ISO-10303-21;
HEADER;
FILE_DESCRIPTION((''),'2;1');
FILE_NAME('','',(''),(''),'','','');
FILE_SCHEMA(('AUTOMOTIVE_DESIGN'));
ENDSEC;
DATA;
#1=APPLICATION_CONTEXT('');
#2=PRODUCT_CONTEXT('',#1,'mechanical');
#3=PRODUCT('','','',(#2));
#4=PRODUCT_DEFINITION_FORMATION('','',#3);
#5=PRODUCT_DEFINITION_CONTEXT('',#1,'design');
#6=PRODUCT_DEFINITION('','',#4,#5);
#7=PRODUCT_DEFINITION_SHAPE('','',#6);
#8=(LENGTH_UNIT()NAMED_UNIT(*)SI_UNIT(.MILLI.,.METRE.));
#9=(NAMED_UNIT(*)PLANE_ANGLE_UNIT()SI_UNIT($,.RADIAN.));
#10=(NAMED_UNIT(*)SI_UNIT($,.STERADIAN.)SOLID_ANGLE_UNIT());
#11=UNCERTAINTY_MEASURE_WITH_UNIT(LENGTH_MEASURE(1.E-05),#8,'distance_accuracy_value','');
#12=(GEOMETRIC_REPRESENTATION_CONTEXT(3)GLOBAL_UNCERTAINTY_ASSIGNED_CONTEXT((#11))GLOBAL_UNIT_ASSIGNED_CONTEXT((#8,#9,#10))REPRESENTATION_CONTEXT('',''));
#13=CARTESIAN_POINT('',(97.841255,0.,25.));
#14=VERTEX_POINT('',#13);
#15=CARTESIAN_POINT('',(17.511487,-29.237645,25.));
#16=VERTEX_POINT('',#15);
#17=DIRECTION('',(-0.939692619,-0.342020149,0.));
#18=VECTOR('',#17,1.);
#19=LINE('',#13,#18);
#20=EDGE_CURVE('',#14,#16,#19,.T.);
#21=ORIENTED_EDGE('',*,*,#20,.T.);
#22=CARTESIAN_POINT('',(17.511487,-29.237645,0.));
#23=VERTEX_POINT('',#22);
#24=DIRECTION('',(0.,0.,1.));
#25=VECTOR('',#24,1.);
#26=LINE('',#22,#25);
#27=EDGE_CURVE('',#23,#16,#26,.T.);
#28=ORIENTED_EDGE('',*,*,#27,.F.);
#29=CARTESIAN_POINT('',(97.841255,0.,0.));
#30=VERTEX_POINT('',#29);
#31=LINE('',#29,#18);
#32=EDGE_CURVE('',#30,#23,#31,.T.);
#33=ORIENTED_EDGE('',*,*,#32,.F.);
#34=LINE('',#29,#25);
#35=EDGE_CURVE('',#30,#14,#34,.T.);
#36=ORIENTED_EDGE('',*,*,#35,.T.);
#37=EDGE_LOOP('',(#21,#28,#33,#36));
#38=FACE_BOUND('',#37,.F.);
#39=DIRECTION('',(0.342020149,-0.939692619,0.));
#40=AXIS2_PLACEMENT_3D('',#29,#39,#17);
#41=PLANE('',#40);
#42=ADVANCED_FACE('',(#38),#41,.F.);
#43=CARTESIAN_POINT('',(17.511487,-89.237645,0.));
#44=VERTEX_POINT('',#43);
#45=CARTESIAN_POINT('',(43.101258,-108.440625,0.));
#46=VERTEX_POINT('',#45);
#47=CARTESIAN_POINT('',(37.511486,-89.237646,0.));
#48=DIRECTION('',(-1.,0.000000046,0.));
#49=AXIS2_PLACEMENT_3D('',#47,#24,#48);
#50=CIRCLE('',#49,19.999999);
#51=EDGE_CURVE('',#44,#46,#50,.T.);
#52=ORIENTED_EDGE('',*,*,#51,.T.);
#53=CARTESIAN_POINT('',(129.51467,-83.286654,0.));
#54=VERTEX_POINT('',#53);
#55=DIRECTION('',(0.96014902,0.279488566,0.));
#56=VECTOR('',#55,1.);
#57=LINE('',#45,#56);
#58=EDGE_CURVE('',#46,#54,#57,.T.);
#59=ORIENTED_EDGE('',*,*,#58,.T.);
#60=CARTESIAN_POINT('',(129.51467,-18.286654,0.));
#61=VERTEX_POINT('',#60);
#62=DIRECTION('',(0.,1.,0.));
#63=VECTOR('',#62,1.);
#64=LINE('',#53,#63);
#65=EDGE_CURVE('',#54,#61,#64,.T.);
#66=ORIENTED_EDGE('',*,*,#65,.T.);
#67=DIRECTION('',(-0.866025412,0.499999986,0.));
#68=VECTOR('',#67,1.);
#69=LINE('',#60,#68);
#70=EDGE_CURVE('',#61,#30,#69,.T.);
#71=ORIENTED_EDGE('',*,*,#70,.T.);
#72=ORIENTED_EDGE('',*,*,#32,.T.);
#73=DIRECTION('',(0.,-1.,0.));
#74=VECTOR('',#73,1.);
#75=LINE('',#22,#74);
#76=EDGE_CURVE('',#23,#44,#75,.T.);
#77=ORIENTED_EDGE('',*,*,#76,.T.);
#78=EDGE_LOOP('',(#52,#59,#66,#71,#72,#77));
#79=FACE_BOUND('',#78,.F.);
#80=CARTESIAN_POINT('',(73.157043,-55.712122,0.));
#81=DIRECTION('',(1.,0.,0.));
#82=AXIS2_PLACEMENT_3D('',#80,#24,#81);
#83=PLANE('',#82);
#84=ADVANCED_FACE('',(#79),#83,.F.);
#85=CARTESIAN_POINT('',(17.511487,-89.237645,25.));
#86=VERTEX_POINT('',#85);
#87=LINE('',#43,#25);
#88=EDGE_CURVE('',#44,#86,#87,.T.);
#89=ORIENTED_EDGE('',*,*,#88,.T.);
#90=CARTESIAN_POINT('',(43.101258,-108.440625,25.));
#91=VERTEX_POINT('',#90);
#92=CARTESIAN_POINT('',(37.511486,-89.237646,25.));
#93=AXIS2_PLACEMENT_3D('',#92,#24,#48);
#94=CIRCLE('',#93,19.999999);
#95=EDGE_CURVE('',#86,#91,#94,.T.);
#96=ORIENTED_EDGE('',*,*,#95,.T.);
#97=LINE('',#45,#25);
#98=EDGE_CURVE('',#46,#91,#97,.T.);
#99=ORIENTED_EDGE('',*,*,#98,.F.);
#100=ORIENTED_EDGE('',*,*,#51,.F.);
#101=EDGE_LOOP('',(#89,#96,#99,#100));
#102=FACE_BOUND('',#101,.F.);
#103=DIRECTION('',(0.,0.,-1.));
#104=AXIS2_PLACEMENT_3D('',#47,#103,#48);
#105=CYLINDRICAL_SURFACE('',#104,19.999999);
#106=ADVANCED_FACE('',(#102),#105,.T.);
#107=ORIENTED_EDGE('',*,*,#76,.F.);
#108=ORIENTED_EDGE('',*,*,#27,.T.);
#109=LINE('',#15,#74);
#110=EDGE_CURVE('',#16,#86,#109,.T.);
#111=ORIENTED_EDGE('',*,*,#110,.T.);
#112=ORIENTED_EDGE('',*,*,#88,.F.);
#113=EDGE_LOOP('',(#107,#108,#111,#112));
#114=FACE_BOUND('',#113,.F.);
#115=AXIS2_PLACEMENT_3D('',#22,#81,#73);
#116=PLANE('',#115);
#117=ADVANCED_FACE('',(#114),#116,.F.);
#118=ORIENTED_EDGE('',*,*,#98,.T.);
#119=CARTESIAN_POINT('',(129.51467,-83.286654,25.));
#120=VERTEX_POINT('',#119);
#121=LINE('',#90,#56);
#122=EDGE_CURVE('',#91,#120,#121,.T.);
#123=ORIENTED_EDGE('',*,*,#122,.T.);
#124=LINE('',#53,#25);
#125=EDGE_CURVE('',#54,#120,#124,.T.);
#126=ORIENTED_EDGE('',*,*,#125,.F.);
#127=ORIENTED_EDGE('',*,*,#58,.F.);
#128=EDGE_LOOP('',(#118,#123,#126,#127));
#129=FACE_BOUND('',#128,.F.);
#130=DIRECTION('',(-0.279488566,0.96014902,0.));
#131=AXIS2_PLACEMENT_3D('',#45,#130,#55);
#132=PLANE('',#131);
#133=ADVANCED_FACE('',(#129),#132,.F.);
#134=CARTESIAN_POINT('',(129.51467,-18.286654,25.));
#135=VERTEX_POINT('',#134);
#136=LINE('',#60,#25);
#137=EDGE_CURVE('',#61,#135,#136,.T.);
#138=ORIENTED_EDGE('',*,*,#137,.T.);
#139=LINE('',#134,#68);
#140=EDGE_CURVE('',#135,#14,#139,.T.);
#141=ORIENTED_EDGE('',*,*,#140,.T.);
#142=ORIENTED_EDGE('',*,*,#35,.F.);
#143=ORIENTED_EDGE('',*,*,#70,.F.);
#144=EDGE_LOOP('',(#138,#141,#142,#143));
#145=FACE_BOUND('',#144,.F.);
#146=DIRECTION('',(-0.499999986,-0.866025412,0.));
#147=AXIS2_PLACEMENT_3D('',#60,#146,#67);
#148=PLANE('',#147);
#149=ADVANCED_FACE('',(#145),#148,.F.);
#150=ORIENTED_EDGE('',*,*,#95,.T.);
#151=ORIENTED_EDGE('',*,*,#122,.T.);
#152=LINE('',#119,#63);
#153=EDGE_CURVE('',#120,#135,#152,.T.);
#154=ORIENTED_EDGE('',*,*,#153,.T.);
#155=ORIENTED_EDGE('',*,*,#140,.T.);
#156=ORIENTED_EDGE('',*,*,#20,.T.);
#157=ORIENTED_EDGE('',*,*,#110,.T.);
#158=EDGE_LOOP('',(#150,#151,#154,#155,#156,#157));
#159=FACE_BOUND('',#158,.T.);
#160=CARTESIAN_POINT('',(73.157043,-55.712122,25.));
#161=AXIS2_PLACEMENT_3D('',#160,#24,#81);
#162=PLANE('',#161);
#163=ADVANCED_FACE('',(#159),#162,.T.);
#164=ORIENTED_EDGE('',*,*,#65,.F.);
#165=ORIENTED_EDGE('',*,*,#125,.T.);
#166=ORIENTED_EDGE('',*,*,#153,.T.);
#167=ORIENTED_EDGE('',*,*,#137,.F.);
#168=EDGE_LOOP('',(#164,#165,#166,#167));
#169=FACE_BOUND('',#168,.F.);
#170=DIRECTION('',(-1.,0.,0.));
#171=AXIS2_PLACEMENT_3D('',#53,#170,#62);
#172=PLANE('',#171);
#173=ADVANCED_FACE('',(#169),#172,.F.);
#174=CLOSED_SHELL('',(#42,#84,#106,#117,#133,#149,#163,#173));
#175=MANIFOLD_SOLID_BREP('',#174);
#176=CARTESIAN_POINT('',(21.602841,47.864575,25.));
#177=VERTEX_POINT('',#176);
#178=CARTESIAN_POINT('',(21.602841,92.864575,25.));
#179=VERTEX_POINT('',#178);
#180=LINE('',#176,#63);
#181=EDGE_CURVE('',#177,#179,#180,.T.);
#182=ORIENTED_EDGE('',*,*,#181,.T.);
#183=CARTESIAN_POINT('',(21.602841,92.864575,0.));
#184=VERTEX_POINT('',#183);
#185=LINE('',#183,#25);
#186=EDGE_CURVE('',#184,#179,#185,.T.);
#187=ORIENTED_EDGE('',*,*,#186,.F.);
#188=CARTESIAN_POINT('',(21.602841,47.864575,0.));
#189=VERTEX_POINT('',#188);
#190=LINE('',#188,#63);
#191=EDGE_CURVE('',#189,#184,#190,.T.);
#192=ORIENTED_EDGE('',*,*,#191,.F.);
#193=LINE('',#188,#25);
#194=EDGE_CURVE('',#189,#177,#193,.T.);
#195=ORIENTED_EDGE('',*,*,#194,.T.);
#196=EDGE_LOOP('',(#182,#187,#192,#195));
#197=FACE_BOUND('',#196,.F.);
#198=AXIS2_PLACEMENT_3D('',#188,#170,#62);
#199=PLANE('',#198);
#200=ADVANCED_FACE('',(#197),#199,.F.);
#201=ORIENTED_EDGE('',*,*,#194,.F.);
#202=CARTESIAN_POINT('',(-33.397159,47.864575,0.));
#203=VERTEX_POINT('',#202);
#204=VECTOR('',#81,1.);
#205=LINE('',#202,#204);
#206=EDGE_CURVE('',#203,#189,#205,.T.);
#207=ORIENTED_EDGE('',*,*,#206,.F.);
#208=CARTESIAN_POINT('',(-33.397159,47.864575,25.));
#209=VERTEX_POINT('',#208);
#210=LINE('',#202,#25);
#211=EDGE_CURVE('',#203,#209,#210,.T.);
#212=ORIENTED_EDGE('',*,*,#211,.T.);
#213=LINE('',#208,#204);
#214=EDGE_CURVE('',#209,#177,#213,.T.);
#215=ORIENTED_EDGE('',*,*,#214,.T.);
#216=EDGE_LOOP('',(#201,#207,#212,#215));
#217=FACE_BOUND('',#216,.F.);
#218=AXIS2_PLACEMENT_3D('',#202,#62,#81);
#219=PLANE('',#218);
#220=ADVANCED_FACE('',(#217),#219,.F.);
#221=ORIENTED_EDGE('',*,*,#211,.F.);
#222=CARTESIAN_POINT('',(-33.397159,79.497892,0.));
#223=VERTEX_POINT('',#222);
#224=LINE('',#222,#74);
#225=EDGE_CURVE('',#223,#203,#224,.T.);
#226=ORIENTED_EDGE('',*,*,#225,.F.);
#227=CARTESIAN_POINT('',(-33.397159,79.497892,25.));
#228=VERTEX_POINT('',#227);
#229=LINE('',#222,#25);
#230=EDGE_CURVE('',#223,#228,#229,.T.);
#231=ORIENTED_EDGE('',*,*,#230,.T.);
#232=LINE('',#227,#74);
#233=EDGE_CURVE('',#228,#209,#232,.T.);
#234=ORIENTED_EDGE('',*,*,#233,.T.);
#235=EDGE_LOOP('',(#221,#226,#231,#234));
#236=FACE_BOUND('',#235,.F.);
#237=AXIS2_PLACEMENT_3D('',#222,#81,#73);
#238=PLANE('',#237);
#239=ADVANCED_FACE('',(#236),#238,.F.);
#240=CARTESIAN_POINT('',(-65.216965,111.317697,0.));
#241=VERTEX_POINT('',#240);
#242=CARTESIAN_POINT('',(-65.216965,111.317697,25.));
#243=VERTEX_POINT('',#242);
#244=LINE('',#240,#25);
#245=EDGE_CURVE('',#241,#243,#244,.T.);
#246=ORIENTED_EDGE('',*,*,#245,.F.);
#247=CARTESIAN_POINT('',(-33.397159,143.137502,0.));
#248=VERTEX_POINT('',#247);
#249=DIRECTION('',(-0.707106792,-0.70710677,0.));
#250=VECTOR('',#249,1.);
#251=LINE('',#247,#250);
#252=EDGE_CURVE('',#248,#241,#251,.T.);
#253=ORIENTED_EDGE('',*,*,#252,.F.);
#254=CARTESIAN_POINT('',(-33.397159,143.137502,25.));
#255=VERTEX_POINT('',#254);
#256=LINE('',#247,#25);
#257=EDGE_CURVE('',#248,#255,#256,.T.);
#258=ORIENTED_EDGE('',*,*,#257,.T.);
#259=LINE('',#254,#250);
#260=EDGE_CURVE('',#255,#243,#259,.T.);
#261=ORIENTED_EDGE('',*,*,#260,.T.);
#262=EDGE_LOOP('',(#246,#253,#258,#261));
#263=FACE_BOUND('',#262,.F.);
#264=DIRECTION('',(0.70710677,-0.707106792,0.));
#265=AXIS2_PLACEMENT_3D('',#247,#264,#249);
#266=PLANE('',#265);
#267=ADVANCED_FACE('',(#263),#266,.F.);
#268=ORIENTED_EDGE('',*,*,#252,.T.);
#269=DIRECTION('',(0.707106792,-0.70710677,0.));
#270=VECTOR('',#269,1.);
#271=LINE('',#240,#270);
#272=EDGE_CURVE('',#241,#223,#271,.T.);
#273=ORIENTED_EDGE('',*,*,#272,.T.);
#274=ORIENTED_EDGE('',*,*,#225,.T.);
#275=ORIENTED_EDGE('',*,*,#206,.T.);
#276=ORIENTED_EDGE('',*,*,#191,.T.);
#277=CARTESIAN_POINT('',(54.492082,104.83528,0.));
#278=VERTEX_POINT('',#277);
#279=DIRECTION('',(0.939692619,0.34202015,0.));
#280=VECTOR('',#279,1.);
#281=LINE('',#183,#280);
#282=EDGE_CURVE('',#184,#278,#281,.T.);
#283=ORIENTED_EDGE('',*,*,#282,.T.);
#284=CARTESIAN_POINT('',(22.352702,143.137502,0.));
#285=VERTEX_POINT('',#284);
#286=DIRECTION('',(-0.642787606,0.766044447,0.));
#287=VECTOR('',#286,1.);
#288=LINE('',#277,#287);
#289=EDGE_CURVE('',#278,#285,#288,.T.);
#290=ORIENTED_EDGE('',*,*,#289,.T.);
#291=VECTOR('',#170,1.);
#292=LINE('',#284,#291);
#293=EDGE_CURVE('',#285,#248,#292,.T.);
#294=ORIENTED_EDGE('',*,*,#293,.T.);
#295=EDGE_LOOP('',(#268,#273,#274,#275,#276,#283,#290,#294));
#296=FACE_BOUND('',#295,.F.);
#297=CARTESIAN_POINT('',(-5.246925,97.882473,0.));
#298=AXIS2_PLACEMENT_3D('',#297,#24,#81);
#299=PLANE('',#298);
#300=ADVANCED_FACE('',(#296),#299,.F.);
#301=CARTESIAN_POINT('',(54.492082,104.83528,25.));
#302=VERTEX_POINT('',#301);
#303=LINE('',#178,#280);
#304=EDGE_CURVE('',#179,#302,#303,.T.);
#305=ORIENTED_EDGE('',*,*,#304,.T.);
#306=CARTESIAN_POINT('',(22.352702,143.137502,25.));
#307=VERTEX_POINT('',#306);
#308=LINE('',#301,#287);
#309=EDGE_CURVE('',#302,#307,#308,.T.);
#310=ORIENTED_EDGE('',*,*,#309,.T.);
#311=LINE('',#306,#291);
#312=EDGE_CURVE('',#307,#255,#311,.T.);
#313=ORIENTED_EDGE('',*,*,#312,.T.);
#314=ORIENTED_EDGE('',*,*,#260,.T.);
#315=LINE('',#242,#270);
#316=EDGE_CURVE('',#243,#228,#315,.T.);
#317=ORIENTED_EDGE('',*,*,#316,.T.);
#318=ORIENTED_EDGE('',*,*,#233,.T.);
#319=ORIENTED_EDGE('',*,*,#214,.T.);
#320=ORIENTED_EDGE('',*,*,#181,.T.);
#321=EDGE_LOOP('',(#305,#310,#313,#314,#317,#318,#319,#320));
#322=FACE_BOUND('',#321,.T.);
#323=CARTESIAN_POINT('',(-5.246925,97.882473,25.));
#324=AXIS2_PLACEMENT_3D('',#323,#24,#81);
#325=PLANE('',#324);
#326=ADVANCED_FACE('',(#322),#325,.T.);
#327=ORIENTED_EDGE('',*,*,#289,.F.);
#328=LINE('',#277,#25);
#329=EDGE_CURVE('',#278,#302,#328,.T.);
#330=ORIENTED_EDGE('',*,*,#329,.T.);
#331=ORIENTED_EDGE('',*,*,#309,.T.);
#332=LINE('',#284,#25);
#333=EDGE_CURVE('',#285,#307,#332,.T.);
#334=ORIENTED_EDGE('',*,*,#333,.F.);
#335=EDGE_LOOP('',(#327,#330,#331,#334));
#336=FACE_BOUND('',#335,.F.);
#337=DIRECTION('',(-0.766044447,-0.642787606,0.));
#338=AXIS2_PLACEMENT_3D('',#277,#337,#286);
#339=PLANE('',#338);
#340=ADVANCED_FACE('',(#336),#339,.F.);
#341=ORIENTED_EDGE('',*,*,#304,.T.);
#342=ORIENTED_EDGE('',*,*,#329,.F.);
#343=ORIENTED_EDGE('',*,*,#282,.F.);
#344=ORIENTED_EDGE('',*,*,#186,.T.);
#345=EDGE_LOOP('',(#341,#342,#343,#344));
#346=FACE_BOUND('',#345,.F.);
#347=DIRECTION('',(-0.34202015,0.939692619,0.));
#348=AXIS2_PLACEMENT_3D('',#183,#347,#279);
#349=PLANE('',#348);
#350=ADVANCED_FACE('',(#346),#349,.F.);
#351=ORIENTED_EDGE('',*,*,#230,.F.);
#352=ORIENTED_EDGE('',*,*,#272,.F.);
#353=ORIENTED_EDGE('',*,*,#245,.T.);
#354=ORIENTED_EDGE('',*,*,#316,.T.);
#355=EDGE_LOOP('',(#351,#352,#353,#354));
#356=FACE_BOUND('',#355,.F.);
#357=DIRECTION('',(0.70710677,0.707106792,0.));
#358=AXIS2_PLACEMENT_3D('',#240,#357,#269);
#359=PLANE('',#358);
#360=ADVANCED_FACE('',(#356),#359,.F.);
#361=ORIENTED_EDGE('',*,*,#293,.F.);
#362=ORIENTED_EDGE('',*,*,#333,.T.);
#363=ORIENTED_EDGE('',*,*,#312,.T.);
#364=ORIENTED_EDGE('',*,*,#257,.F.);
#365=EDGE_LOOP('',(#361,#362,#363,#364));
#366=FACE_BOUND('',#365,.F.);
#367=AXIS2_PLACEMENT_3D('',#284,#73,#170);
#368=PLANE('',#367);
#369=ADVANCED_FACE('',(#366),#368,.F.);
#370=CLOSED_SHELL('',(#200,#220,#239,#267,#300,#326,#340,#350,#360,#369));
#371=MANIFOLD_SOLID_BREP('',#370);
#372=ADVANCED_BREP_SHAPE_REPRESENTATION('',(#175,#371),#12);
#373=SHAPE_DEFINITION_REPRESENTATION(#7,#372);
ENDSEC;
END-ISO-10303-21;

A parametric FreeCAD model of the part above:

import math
import FreeCAD as App
import Part
import Sketcher

V = App.Vector
Q = App.Units.Quantity

doc = App.newDocument("Part")
body = doc.addObject("PartDesign::Body", "Body")
body.AllowCompound = True

sketch1 = body.newObject("Sketcher::SketchObject", "Sketch")
sketch1.AttachmentSupport = (doc.getObject("XY_Plane"), [""])
sketch1.MapMode = "FlatFace"
sketch1.addGeometry(Part.LineSegment(V(-33, 79, 0), V(-33, 48, 0)), False)
sketch1.addGeometry(Part.LineSegment(V(-33, 48, 0), V(22, 48, 0)), False)
sketch1.addGeometry(Part.LineSegment(V(22, 48, 0), V(22, 93, 0)), False)
sketch1.addGeometry(Part.LineSegment(V(22, 93, 0), V(54, 105, 0)), False)
sketch1.addGeometry(Part.LineSegment(V(54, 105, 0), V(22, 143, 0)), False)
sketch1.addGeometry(Part.LineSegment(V(22, 143, 0), V(-33, 143, 0)), False)
sketch1.addGeometry(Part.LineSegment(V(-33, 143, 0), V(-65, 111, 0)), False)
sketch1.addGeometry(Part.LineSegment(V(-65, 111, 0), V(-33, 79, 0)), False)
sketch1.addGeometry(Part.LineSegment(V(130, -83, 0), V(130, -18, 0)), False)
sketch1.addGeometry(Part.LineSegment(V(130, -18, 0), V(98, 0, 0)), False)
sketch1.addGeometry(Part.LineSegment(V(98, 0, 0), V(18, -29, 0)), False)
sketch1.addGeometry(Part.LineSegment(V(18, -29, 0), V(18, -89, 0)), False)
sketch1.addGeometry(Part.ArcOfCircle(Part.Circle(V(38, -89, 0), V(0, 0, 1), 20), math.radians(180), math.radians(286)), False)
sketch1.addGeometry(Part.LineSegment(V(43, -108, 0), V(130, -83, 0)), False)
sketch1.addConstraint(Sketcher.Constraint("Coincident", 0, 2, 1, 1))
sketch1.addConstraint(Sketcher.Constraint("Coincident", 1, 2, 2, 1))
sketch1.addConstraint(Sketcher.Constraint("Coincident", 2, 2, 3, 1))
sketch1.addConstraint(Sketcher.Constraint("Coincident", 3, 2, 4, 1))
sketch1.addConstraint(Sketcher.Constraint("Coincident", 4, 2, 5, 1))
sketch1.addConstraint(Sketcher.Constraint("Coincident", 5, 2, 6, 1))
sketch1.addConstraint(Sketcher.Constraint("Coincident", 6, 2, 7, 1))
sketch1.addConstraint(Sketcher.Constraint("Coincident", 7, 2, 0, 1))
sketch1.addConstraint(Sketcher.Constraint("Coincident", 8, 2, 9, 1))
sketch1.addConstraint(Sketcher.Constraint("Coincident", 9, 2, 10, 1))
sketch1.addConstraint(Sketcher.Constraint("Coincident", 10, 2, 11, 1))
sketch1.addConstraint(Sketcher.Constraint("Tangent", 11, 2, 12, 1))
sketch1.addConstraint(Sketcher.Constraint("Tangent", 12, 2, 13, 1))
sketch1.addConstraint(Sketcher.Constraint("Coincident", 13, 2, 8, 1))
sketch1.addConstraint(Sketcher.Constraint("Vertical", 0))
sketch1.addConstraint(Sketcher.Constraint("Horizontal", 1))
sketch1.addConstraint(Sketcher.Constraint("Vertical", 2))
sketch1.addConstraint(Sketcher.Constraint("Horizontal", 5))
sketch1.addConstraint(Sketcher.Constraint("Vertical", 8))
sketch1.addConstraint(Sketcher.Constraint("Vertical", 11))
sketch1.addConstraint(Sketcher.Constraint("PointOnObject", 9, 2, -1))
sketch1.addConstraint(Sketcher.Constraint("Perpendicular", 6, 7))
sketch1.addConstraint(Sketcher.Constraint("Parallel", 3, 10))
sketch1.addConstraint(Sketcher.Constraint("Vertical", 0, 2, 5, 2))
sketch1.addConstraint(Sketcher.Constraint("Equal", 6, 7))
sketch1.addConstraint(Sketcher.Constraint("Radius", 12, Q("19.999999 mm")))
sketch1.addConstraint(Sketcher.Constraint("DistanceX", 1, 1, 1, 2, Q("55 mm")))
sketch1.addConstraint(Sketcher.Constraint("DistanceY", 2, 1, 2, 2, Q("45 mm")))
sketch1.addConstraint(Sketcher.Constraint("DistanceY", 8, 1, 8, 2, Q("65 mm")))
sketch1.addConstraint(Sketcher.Constraint("DistanceY", 11, 2, 11, 1, Q("60 mm")))
sketch1.addConstraint(Sketcher.Constraint("Angle", 3, Q("20 deg")))
sketch1.addConstraint(Sketcher.Constraint("Angle", 4, Q("130 deg")))
sketch1.addConstraint(Sketcher.Constraint("Angle", 9, Q("150.000001 deg")))
sketch1.addConstraint(Sketcher.Constraint("Distance", 3, Q("34.999999 mm")))
sketch1.addConstraint(Sketcher.Constraint("Distance", 4, Q("50 mm")))
sketch1.addConstraint(Sketcher.Constraint("Distance", 6, Q("45 mm")))
sketch1.addConstraint(Sketcher.Constraint("Distance", 13, Q("90 mm")))
sketch1.addConstraint(Sketcher.Constraint("Distance", 9, Q("36.573309 mm")))
sketch1.addConstraint(Sketcher.Constraint("DistanceX", 0, 2, -1, 1, Q("33.397159 mm")))
sketch1.addConstraint(Sketcher.Constraint("DistanceY", -1, 1, 3, 2, Q("104.83528 mm")))
sketch1.addConstraint(Sketcher.Constraint("DistanceX", -1, 1, 8, 2, Q("129.51467 mm")))
pad1 = body.newObject("PartDesign::Pad", "Pad")
pad1.Profile = sketch1
pad1.Length = 25

doc.recompute()
